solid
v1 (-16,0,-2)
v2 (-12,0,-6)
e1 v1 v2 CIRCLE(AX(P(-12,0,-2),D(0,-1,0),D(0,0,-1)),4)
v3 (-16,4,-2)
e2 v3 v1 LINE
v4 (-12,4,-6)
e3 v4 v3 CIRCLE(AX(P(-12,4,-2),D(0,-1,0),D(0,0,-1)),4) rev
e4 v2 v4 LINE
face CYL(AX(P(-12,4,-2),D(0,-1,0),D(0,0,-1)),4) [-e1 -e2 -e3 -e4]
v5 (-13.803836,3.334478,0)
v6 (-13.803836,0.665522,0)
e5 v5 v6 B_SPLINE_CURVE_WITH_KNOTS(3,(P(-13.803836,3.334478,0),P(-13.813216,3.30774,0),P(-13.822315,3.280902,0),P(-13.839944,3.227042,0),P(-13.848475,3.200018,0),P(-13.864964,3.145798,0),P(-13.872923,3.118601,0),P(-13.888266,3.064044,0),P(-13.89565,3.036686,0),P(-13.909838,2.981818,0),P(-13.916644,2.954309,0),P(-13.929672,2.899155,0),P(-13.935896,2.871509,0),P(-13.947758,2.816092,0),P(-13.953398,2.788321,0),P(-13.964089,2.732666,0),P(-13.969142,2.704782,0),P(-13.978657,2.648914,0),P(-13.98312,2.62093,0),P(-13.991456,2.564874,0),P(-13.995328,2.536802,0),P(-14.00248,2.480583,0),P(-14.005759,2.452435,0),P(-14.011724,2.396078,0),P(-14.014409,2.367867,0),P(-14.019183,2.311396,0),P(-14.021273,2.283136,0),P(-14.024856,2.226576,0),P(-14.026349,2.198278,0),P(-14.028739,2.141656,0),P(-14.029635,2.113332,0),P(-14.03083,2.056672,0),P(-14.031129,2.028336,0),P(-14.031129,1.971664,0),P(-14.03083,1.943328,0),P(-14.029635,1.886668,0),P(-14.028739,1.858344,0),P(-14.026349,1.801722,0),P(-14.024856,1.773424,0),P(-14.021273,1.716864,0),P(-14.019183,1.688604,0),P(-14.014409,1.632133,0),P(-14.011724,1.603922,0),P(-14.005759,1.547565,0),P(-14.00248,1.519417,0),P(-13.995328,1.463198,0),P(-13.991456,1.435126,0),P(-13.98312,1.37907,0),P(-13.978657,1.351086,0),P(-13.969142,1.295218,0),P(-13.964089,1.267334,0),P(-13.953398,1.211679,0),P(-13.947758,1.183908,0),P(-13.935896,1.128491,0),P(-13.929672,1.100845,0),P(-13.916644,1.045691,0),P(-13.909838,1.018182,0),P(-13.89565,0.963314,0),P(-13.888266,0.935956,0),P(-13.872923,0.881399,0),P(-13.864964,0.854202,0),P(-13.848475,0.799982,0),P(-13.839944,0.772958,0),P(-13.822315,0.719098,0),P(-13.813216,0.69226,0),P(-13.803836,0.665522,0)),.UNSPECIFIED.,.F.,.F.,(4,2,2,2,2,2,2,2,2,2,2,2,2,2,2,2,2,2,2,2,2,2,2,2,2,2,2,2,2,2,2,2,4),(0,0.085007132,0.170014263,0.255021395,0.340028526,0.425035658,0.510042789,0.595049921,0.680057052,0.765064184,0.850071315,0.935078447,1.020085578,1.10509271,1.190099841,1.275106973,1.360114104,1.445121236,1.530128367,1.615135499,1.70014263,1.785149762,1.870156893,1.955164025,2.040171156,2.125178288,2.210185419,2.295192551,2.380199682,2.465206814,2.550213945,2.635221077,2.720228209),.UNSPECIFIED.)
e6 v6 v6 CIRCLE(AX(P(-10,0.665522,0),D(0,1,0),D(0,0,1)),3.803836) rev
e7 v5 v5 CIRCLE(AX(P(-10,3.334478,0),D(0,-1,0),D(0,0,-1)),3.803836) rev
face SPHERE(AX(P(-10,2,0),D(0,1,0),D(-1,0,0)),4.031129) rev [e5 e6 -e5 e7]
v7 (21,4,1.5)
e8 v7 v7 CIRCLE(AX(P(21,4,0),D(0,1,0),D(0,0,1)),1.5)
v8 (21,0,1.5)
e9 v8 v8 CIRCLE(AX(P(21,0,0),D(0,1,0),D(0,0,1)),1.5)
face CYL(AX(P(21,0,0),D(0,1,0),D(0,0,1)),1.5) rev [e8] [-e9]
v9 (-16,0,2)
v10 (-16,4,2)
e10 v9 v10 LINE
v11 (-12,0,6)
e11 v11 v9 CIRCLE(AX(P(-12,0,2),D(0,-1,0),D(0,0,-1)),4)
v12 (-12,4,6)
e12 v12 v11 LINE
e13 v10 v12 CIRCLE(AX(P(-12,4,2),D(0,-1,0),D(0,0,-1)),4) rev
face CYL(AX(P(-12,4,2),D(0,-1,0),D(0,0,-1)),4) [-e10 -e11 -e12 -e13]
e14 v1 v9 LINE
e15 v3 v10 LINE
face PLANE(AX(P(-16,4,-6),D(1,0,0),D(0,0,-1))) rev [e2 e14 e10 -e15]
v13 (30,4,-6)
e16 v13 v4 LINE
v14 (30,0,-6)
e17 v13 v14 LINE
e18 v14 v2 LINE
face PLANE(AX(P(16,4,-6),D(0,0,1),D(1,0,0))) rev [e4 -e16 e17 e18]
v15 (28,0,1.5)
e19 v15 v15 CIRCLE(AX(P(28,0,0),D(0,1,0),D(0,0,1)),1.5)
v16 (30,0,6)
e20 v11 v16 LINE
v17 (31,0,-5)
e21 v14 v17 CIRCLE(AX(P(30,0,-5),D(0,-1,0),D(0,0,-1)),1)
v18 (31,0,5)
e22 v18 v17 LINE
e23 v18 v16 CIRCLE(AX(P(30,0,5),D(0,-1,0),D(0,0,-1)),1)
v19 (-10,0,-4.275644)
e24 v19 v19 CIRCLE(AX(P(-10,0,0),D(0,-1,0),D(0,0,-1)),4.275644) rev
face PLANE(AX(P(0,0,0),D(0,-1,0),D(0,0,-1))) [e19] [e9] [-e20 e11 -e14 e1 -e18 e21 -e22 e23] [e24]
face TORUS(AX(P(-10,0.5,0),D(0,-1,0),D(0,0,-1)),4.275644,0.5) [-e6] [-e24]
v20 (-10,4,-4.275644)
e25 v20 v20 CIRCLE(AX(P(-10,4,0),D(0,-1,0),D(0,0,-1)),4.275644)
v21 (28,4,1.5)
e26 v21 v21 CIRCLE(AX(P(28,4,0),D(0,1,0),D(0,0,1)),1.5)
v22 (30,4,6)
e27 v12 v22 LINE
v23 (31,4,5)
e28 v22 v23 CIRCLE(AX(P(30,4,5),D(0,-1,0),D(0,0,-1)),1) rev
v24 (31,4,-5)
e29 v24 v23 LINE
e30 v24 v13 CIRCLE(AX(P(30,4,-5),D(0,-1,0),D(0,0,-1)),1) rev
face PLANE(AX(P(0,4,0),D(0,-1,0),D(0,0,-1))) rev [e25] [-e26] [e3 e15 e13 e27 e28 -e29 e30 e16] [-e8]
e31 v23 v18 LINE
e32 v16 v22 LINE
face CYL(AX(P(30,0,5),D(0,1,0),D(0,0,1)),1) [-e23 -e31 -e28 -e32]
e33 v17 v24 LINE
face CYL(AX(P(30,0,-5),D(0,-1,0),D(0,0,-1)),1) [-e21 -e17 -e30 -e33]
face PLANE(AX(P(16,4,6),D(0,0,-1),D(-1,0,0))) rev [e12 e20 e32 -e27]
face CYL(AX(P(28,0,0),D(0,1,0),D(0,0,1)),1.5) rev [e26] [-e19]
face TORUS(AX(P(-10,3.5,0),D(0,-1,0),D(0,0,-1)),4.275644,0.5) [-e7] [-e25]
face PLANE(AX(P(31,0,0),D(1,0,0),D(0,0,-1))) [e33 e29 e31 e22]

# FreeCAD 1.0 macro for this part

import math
import FreeCAD as App
import Part
import Sketcher
from FreeCAD import Vector
Q = App.Units.Quantity


def edges_at(feature, points):
    """Names of the edges that pass closest to the given points."""
    edges = feature.Shape.Edges
    near = lambda p: min(range(len(edges)), key=lambda i: edges[i].distToShape(Part.Vertex(*p))[0])
    return sorted({f"Edge{near(p) + 1}" for p in points})

doc = App.newDocument("Part")
body = doc.addObject("PartDesign::Body", "Body")

# Sketch on XZ plane
sketch1 = doc.addObject("Sketcher::SketchObject", "Sketch")
body.addObject(sketch1)
sketch1.AttachmentSupport = (doc.XZ_Plane, [""])
sketch1.MapMode = "FlatFace"
sketch1.addGeometry(Part.LineSegment(Vector(-16, -6, 0), Vector(-16, 6, 0)), False)
sketch1.addGeometry(Part.LineSegment(Vector(-16, 6, 0), Vector(16, 6, 0)), False)
sketch1.addGeometry(Part.LineSegment(Vector(16, 6, 0), Vector(16, -6, 0)), False)
sketch1.addGeometry(Part.LineSegment(Vector(16, -6, 0), Vector(-16, -6, 0)), False)
sketch1.addConstraint(Sketcher.Constraint("Coincident", 0, 2, 1, 1))
sketch1.addConstraint(Sketcher.Constraint("Coincident", 1, 2, 2, 1))
sketch1.addConstraint(Sketcher.Constraint("Coincident", 2, 2, 3, 1))
sketch1.addConstraint(Sketcher.Constraint("Coincident", 3, 2, 0, 1))
sketch1.addConstraint(Sketcher.Constraint("Vertical", 0))
sketch1.addConstraint(Sketcher.Constraint("Horizontal", 1))
sketch1.addConstraint(Sketcher.Constraint("Vertical", 2))
sketch1.addConstraint(Sketcher.Constraint("Horizontal", 3))
sketch1.addConstraint(Sketcher.Constraint("Symmetric", 0, 2, 2, 2, -1, 1))
sketch1.addConstraint(Sketcher.Constraint("DistanceX", 1, 1, 1, 2, Q("32 mm")))
sketch1.addConstraint(Sketcher.Constraint("DistanceY", 0, 1, 0, 2, Q("12 mm")))
pad1 = doc.addObject("PartDesign::Pad", "Pad")
body.addObject(pad1)
pad1.Profile = sketch1
pad1.Length = 4
pad1.Reversed = True

# Sketch on XY plane
sketch2 = doc.addObject("Sketcher::SketchObject", "Sketch001")
body.addObject(sketch2)
sketch2.AttachmentSupport = (doc.XY_Plane, [""])
sketch2.MapMode = "FlatFace"
sketch2.addGeometry(Part.LineSegment(Vector(-10, 0, 0), Vector(-10, 4, 0)), False)
sketch2.addGeometry(Part.LineSegment(Vector(-10, 4, 0), Vector(-13.5, 4, 0)), False)
sketch2.addGeometry(Part.ArcOfCircle(Part.Circle(Vector(-10, 2, 0), Vector(0, 0, 1), 4), math.radians(150), math.radians(210)), False)
sketch2.addGeometry(Part.LineSegment(Vector(-13.5, 0, 0), Vector(-10, 0, 0)), False)
sketch2.addGeometry(Part.LineSegment(Vector(-10, 4, 0), Vector(-10, 0, 0)), True)  # axis
sketch2.addConstraint(Sketcher.Constraint("Coincident", 0, 2, 1, 1))
sketch2.addConstraint(Sketcher.Constraint("Coincident", 1, 2, 2, 1))
sketch2.addConstraint(Sketcher.Constraint("Coincident", 2, 2, 3, 1))
sketch2.addConstraint(Sketcher.Constraint("Coincident", 3, 2, 0, 1))
sketch2.addConstraint(Sketcher.Constraint("Vertical", 0))
sketch2.addConstraint(Sketcher.Constraint("Horizontal", 1))
sketch2.addConstraint(Sketcher.Constraint("Horizontal", 3))
sketch2.addConstraint(Sketcher.Constraint("Vertical", 4))
sketch2.addConstraint(Sketcher.Constraint("Coincident", 4, 1, 0, 2))
sketch2.addConstraint(Sketcher.Constraint("PointOnObject", 2, 2, -1))
sketch2.addConstraint(Sketcher.Constraint("PointOnObject", 4, 2, -1))
sketch2.addConstraint(Sketcher.Constraint("Vertical", 2, 3, 0, 2))
sketch2.addConstraint(Sketcher.Constraint("Vertical", 1, 2, 2, 2))
sketch2.addConstraint(Sketcher.Constraint("DistanceY", 0, 1, 0, 2, Q("4 mm")))
sketch2.addConstraint(Sketcher.Constraint("DistanceX", 1, 2, 1, 1, Q("3.5 mm")))
sketch2.addConstraint(Sketcher.Constraint("DistanceX", 2, 3, -1, 1, Q("10 mm")))
groove = doc.addObject("PartDesign::Groove", "Groove")
body.addObject(groove)
groove.Profile = sketch2
groove.ReferenceAxis = (sketch2, ["Axis0"])
groove.Angle = 360
doc.recompute()

fillet = doc.addObject("PartDesign::Fillet", "Fillet")
body.addObject(fillet)
fillet.Base = (groove, edges_at(groove, [(-16, 2, -6), (-16, 2, 6)]))
fillet.Radius = 4
doc.recompute()

fillet2 = doc.addObject("PartDesign::Fillet", "Fillet001")
body.addObject(fillet2)
fillet2.Base = (fillet, edges_at(fillet, [(-6.5, 4, 0), (-6.5, 0, 0)]))
fillet2.Radius = 0.5

# Sketch on YZ plane
sketch3 = doc.addObject("Sketcher::SketchObject", "Sketch002")
body.addObject(sketch3)
sketch3.AttachmentSupport = (doc.YZ_Plane, [""])
sketch3.MapMode = "FlatFace"
sketch3.AttachmentOffset = App.Placement(Vector(0, 0, 16), App.Rotation())
sketch3.addGeometry(Part.LineSegment(Vector(4, 6, 0), Vector(0, 6, 0)), False)
sketch3.addGeometry(Part.LineSegment(Vector(0, 6, 0), Vector(0, -6, 0)), False)
sketch3.addGeometry(Part.LineSegment(Vector(0, -6, 0), Vector(4, -6, 0)), False)
sketch3.addGeometry(Part.LineSegment(Vector(4, -6, 0), Vector(4, 6, 0)), False)
sketch3.addConstraint(Sketcher.Constraint("Coincident", 0, 2, 1, 1))
sketch3.addConstraint(Sketcher.Constraint("Coincident", 1, 2, 2, 1))
sketch3.addConstraint(Sketcher.Constraint("Coincident", 2, 2, 3, 1))
sketch3.addConstraint(Sketcher.Constraint("Coincident", 3, 2, 0, 1))
sketch3.addConstraint(Sketcher.Constraint("Horizontal", 0))
sketch3.addConstraint(Sketcher.Constraint("Vertical", 1))
sketch3.addConstraint(Sketcher.Constraint("Horizontal", 2))
sketch3.addConstraint(Sketcher.Constraint("Vertical", 3))
sketch3.addConstraint(Sketcher.Constraint("Symmetric", 0, 2, 1, 2, -1, 1))
sketch3.addConstraint(Sketcher.Constraint("DistanceX", 0, 2, 0, 1, Q("4 mm")))
sketch3.addConstraint(Sketcher.Constraint("DistanceY", 1, 2, 1, 1, Q("12 mm")))
pad2 = doc.addObject("PartDesign::Pad", "Pad001")
body.addObject(pad2)
pad2.Profile = sketch3
pad2.Length = 15

# Sketch on XZ plane
sketch4 = doc.addObject("Sketcher::SketchObject", "Sketch003")
body.addObject(sketch4)
sketch4.AttachmentSupport = (doc.XZ_Plane, [""])
sketch4.MapMode = "FlatFace"
sketch4.AttachmentOffset = App.Placement(Vector(0, 0, -4), App.Rotation())
sketch4.addGeometry(Part.Circle(Vector(21, 0, 0), Vector(0, 0, 1), 1.5), False)
sketch4.addGeometry(Part.Circle(Vector(28, 0, 0), Vector(0, 0, 1), 1.5), False)
sketch4.addConstraint(Sketcher.Constraint("Equal", 0, 1))
sketch4.addConstraint(Sketcher.Constraint("PointOnObject", 0, 3, -1))
sketch4.addConstraint(Sketcher.Constraint("PointOnObject", 1, 3, -1))
sketch4.addConstraint(Sketcher.Constraint("Diameter", 0, Q("3 mm")))
sketch4.addConstraint(Sketcher.Constraint("DistanceX", -1, 1, 0, 3, Q("21 mm")))
sketch4.addConstraint(Sketcher.Constraint("DistanceX", -1, 1, 1, 3, Q("28 mm")))
pocket1 = doc.addObject("PartDesign::Pocket", "Pocket")
body.addObject(pocket1)
pocket1.Profile = sketch4
pocket1.Type = "ThroughAll"
pocket1.Reversed = True
doc.recompute()

fillet3 = doc.addObject("PartDesign::Fillet", "Fillet002")
body.addObject(fillet3)
fillet3.Base = (pocket1, edges_at(pocket1, [(31, 2, 6), (31, 2, -6)]))
fillet3.Radius = 1

doc.recompute()
